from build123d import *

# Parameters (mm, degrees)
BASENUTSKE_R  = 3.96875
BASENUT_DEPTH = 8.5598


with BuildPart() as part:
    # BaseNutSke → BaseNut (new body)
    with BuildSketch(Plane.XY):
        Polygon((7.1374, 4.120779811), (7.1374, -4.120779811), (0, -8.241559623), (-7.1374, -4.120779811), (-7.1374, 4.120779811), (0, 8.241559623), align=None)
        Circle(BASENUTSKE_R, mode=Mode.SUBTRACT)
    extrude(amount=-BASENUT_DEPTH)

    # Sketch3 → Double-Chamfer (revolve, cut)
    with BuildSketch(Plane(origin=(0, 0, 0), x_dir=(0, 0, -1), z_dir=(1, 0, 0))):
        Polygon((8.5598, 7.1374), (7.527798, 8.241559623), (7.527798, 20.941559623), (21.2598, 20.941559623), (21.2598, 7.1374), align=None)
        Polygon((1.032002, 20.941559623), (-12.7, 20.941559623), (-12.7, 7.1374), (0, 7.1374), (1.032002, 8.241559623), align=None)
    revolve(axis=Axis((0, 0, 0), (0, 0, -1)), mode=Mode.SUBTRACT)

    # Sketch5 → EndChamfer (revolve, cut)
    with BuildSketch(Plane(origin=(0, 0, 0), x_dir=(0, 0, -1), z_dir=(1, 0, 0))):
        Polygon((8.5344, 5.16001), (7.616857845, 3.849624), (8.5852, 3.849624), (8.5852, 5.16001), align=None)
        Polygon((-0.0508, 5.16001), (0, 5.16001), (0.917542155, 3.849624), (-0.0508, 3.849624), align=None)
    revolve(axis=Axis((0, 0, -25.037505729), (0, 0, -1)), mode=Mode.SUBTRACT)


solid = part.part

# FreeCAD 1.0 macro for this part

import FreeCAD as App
import Part
import Sketcher

V = App.Vector
Q = App.Units.Quantity


def add_polygon(sketch, points):
    """Adds a closed chain of lines whose ends are joined by coincident constraints."""
    first, n = sketch.GeometryCount, len(points)
    for a, b in zip(points, points[1:] + points[:1]):
        sketch.addGeometry(Part.LineSegment(App.Vector(*a, 0), App.Vector(*b, 0)), False)
    for i in range(n):
        sketch.addConstraint(Sketcher.Constraint("Coincident", first + i, 2, first + (i + 1) % n, 1))

doc = App.newDocument("Part")
body = doc.addObject("PartDesign::Body", "Body")

# Sketch on XY plane
sketch1 = body.newObject("Sketcher::SketchObject", "Sketch")
sketch1.AttachmentSupport = (doc.getObject("XY_Plane"), [""])
sketch1.MapMode = "FlatFace"
add_polygon(sketch1, [(7.1374, -4.12078), (7.1374, 4.12078), (0, 8.24156), (-7.1374, 4.12078), (-7.1374, -4.12078), (0, -8.24156)])  # lines 0-5
sketch1.addGeometry(Part.Circle(V(0, 0, 0), V(0, 0, 1), 3.96875), False)  # 6
sketch1.addConstraint(Sketcher.Constraint("Vertical", 0))
sketch1.addConstraint(Sketcher.Constraint("Vertical", 3))
sketch1.addConstraint(Sketcher.Constraint("Coincident", 6, 3, -1, 1))
sketch1.addConstraint(Sketcher.Constraint("Symmetric", 0, 2, 3, 2, -1, 1))
sketch1.addConstraint(Sketcher.Constraint("Symmetric", 1, 2, 4, 2, -1, 1))
sketch1.addConstraint(Sketcher.Constraint("PointOnObject", 1, 2, -2))
sketch1.addConstraint(Sketcher.Constraint("Parallel", 2, 5))
sketch1.addConstraint(Sketcher.Constraint("Horizontal", 0, 2, 2, 2))
sketch1.addConstraint(Sketcher.Constraint("Diameter", 6, Q("0.3125 in")))
sketch1.addConstraint(Sketcher.Constraint("Angle", 1, Q("150 deg")))
sketch1.addConstraint(Sketcher.Constraint("DistanceX", -1, 1, 0, 2, Q("0.281 in")))
sketch1.addConstraint(Sketcher.Constraint("DistanceY", 0, 1, 0, 2, 8.24156))
pad1 = body.newObject("PartDesign::Pad", "Pad")
pad1.Profile = sketch1
pad1.Length = Q("0.337 in")
pad1.Reversed = True

# Sketch on YZ plane
sketch2 = body.newObject("Sketcher::SketchObject", "Sketch001")
sketch2.AttachmentSupport = (doc.getObject("YZ_Plane"), [""])
sketch2.MapMode = "FlatFace"
add_polygon(sketch2, [(8.24156, -7.527798), (7.1374, -8.5598), (7.1374, -21.2598), (20.94156, -21.2598), (20.94156, -7.527798)])  # lines 0-4
add_polygon(sketch2, [(20.94156, -1.032002), (20.94156, 12.7), (7.1374, 12.7), (7.1374, 0), (8.24156, -1.032002)])  # lines 5-9
sketch2.addConstraint(Sketcher.Constraint("Vertical", 1))
sketch2.addConstraint(Sketcher.Constraint("Horizontal", 2))
sketch2.addConstraint(Sketcher.Constraint("Vertical", 3))
sketch2.addConstraint(Sketcher.Constraint("Horizontal", 4))
sketch2.addConstraint(Sketcher.Constraint("Vertical", 5))
sketch2.addConstraint(Sketcher.Constraint("Horizontal", 6))
sketch2.addConstraint(Sketcher.Constraint("Vertical", 7))
sketch2.addConstraint(Sketcher.Constraint("Horizontal", 9))
sketch2.addConstraint(Sketcher.Constraint("PointOnObject", 7, 2, -1))
sketch2.addConstraint(Sketcher.Constraint("Vertical", 3, 2, 5, 2))
sketch2.addConstraint(Sketcher.Constraint("Vertical", 1, 2, 6, 2))
sketch2.addConstraint(Sketcher.Constraint("Vertical", 4, 2, 8, 2))
sketch2.addConstraint(Sketcher.Constraint("Equal", 9, 1))
sketch2.addConstraint(Sketcher.Constraint("Equal", 3, 5))
sketch2.addConstraint(Sketcher.Constraint("Equal", 1, 7))
sketch2.addConstraint(Sketcher.Constraint("DistanceX", 4, 2, 4, 1, Q("0.5 in")))
sketch2.addConstraint(Sketcher.Constraint("DistanceX", -1, 1, 0, 2, Q("0.281 in")))
sketch2.addConstraint(Sketcher.Constraint("DistanceY", 0, 2, -1, 1, Q("0.337 in")))
sketch2.addConstraint(Sketcher.Constraint("DistanceY", 3, 1, 3, 2, 13.732002))
sketch2.addConstraint(Sketcher.Constraint("DistanceX", 2, 1, 2, 2, 13.80416))
groove = body.newObject("PartDesign::Groove", "Groove")
groove.Profile = sketch2
groove.ReferenceAxis = (sketch2, ["V_Axis"])
groove.Angle = 360

# Sketch on YZ plane
sketch3 = body.newObject("Sketcher::SketchObject", "Sketch002")
sketch3.AttachmentSupport = (doc.getObject("YZ_Plane"), [""])
sketch3.MapMode = "FlatFace"
add_polygon(sketch3, [(5.16001, -8.5344), (3.849624, -7.616858), (3.849624, -8.5852), (5.16001, -8.5852)])  # lines 0-3
add_polygon(sketch3, [(5.16001, 0), (5.16001, 0.0508), (3.849624, 0.0508), (3.849624, -0.917542)])  # lines 4-7
sketch3.addConstraint(Sketcher.Constraint("Vertical", 1))
sketch3.addConstraint(Sketcher.Constraint("Horizontal", 2))
sketch3.addConstraint(Sketcher.Constraint("Vertical", 3))
sketch3.addConstraint(Sketcher.Constraint("Vertical", 4))
sketch3.addConstraint(Sketcher.Constraint("Horizontal", 5))
sketch3.addConstraint(Sketcher.Constraint("Vertical", 6))
sketch3.addConstraint(Sketcher.Constraint("PointOnObject", 7, 2, -1))
sketch3.addConstraint(Sketcher.Constraint("Vertical", 3, 2, 4, 2))
sketch3.addConstraint(Sketcher.Constraint("Vertical", 1, 2, 5, 2))
sketch3.addConstraint(Sketcher.Constraint("Equal", 3, 4))
sketch3.addConstraint(Sketcher.Constraint("Equal", 1, 6))
sketch3.addConstraint(Sketcher.Constraint("Angle", 0, Q("145 deg")))
sketch3.addConstraint(Sketcher.Constraint("DistanceY", 3, 1, 3, 2, Q("0.002 in")))
sketch3.addConstraint(Sketcher.Constraint("DistanceY", 2, 2, 4, 2, Q("0.34 in")))
sketch3.addConstraint(Sketcher.Constraint("DistanceX", 2, 1, 2, 2, 1.310386))
sketch3.addConstraint(Sketcher.Constraint("DistanceX", -1, 1, 2, 2, 5.16001))
groove2 = body.newObject("PartDesign::Groove", "Groove001")
groove2.Profile = sketch3
groove2.ReferenceAxis = (sketch3, ["V_Axis"])
groove2.Angle = 360

doc.recompute()
